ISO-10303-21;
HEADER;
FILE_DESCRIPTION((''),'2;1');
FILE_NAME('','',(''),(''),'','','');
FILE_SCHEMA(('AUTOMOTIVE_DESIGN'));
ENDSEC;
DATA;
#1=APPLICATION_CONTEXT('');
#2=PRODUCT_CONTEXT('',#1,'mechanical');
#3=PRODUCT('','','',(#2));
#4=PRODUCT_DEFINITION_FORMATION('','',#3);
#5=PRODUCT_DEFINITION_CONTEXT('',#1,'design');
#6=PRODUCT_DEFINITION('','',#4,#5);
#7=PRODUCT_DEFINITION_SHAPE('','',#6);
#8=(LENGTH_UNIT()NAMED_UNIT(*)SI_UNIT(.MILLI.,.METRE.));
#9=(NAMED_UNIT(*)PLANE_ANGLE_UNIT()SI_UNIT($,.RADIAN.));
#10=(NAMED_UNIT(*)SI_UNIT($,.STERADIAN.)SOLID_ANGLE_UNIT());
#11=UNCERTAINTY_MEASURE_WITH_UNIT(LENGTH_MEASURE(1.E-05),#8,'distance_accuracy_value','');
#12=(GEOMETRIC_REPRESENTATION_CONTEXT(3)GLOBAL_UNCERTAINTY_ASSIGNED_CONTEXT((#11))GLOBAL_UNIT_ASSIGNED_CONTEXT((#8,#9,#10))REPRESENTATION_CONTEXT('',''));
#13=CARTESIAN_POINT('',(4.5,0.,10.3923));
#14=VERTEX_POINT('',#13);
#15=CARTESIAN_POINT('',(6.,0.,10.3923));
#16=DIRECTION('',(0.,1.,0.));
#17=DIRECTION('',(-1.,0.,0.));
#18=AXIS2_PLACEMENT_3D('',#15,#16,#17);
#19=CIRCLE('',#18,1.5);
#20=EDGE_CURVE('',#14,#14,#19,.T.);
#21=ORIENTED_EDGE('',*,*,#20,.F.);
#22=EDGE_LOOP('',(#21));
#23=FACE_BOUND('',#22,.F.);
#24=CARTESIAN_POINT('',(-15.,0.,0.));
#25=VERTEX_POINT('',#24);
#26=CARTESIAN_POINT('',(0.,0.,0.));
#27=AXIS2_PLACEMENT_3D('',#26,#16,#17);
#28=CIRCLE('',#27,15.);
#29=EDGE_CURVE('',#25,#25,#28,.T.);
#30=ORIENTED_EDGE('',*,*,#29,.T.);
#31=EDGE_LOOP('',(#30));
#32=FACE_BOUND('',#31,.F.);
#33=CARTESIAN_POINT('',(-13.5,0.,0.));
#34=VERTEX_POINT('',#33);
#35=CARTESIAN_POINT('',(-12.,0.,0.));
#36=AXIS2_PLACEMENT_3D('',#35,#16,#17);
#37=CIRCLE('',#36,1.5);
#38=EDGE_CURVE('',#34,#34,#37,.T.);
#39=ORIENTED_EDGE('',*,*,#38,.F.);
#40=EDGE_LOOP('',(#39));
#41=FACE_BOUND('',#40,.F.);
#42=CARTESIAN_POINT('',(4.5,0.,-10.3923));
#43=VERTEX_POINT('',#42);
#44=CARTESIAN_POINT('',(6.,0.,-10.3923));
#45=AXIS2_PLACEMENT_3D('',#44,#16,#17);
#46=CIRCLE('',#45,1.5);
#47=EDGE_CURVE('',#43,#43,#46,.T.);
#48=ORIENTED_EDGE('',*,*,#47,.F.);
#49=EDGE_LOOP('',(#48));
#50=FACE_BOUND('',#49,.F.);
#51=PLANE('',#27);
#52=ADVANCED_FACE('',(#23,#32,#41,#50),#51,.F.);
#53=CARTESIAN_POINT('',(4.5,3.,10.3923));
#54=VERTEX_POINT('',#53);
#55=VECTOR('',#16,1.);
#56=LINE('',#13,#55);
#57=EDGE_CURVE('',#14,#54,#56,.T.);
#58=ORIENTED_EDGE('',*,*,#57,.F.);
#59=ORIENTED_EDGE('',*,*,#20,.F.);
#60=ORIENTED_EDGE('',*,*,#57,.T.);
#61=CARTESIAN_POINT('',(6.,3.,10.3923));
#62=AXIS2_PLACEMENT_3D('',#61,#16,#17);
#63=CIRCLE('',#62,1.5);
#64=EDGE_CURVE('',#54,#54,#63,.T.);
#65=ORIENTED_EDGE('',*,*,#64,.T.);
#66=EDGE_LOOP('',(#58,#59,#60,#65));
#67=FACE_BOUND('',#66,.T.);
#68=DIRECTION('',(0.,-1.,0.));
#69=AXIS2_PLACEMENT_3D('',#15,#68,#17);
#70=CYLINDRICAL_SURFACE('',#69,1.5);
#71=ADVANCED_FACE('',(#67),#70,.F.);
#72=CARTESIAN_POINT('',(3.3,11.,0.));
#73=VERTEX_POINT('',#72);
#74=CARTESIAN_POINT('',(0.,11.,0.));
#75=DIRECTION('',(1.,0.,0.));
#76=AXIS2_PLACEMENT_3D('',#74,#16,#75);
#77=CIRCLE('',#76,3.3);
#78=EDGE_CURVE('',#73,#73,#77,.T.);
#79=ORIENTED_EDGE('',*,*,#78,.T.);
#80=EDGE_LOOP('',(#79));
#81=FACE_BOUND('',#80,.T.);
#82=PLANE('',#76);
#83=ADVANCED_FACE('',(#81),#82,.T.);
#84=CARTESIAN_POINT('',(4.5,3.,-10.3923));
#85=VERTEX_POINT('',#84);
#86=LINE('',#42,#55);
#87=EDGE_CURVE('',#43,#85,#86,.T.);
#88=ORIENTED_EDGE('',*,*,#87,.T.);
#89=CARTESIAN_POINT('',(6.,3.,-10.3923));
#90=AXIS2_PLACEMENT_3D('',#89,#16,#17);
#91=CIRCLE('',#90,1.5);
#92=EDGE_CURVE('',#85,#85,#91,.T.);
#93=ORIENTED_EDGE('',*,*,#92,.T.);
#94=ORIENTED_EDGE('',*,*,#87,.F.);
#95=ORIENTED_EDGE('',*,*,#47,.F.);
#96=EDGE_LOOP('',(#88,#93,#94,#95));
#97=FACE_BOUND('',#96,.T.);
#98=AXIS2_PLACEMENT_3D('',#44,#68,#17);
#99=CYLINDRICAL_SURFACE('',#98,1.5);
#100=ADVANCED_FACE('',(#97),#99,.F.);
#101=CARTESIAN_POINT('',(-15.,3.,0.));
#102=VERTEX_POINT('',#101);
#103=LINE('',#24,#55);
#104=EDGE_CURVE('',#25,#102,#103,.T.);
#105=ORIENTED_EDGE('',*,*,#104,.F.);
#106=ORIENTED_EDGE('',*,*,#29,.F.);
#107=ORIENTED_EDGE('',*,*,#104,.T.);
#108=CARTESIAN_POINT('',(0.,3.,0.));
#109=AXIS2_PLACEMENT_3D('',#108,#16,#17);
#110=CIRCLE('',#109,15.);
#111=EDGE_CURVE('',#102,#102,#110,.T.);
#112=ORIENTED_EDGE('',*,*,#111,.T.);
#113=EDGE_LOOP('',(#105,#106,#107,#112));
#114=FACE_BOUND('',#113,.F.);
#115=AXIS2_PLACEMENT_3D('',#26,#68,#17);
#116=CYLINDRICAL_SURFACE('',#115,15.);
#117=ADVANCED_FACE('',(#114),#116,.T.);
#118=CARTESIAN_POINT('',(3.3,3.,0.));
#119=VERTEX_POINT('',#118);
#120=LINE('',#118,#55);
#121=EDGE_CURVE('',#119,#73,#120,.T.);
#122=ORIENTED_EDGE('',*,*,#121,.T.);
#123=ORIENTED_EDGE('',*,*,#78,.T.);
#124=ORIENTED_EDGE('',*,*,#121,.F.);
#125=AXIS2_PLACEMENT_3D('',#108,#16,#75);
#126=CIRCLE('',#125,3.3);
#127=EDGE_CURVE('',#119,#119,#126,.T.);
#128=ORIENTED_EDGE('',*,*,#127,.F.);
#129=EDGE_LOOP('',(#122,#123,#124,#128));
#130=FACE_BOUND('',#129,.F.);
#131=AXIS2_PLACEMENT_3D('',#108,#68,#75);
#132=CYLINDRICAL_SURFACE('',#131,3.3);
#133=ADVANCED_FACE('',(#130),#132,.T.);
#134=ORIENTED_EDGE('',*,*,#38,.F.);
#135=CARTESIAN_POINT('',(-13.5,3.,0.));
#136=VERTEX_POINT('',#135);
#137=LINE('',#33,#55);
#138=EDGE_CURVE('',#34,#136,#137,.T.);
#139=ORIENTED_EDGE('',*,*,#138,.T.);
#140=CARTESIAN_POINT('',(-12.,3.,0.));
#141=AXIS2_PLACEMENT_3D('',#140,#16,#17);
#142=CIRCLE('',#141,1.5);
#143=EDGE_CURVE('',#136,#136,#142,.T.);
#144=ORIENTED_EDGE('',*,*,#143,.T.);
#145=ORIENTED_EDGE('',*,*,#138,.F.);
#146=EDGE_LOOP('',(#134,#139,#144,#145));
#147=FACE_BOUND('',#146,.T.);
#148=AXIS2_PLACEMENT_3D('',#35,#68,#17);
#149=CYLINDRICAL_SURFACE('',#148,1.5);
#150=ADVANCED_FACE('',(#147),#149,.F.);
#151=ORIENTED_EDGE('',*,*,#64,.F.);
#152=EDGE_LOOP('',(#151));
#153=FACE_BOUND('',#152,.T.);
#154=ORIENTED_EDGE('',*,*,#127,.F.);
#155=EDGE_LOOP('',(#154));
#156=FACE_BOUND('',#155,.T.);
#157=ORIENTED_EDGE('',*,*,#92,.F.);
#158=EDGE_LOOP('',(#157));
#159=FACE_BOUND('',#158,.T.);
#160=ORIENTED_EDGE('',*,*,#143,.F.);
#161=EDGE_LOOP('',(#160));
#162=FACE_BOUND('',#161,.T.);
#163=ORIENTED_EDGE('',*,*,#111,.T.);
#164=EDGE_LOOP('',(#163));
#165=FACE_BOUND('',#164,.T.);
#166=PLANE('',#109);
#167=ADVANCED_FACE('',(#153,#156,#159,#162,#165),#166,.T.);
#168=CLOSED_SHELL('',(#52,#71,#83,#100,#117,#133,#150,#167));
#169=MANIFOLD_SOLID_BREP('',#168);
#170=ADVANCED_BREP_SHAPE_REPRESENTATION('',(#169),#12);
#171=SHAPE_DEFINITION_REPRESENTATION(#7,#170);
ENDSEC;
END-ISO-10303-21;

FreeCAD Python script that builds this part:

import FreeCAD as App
import Part
import Sketcher

doc = App.newDocument("Part")
body = doc.addObject("PartDesign::Body", "Body")

# Sketch on XZ plane
sketch1 = body.newObject("Sketcher::SketchObject", "Sketch")
sketch1.AttachmentSupport = (doc.getObject("XZ_Plane"), [""])
sketch1.MapMode = "FlatFace"
sketch1.addGeometry(Part.Circle(App.Vector(0, 0, 0), App.Vector(0, 0, 1), 15), False)
sketch1.addGeometry(Part.Circle(App.Vector(6, -10.3923, 0), App.Vector(0, 0, 1), 1.5), False)
sketch1.addGeometry(Part.Circle(App.Vector(6, 10.3923, 0), App.Vector(0, 0, 1), 1.5), False)
sketch1.addGeometry(Part.Circle(App.Vector(-12, 0, 0), App.Vector(0, 0, 1), 1.5), False)
sketch1.addConstraint(Sketcher.Constraint("Coincident", 0, 3, -1, 1))
sketch1.addConstraint(Sketcher.Constraint("Equal", 1, 2))
sketch1.addConstraint(Sketcher.Constraint("Equal", 2, 3))
sketch1.addConstraint(Sketcher.Constraint("Symmetric", 1, 3, 2, 3, -1))
sketch1.addConstraint(Sketcher.Constraint("PointOnObject", 3, 3, -1))
sketch1.addConstraint(Sketcher.Constraint("Diameter", 0, 30.0))
sketch1.addConstraint(Sketcher.Constraint("Diameter", 1, 3.0))
sketch1.addConstraint(Sketcher.Constraint("DistanceX", 3, 3, -1, 1, 12.0))
sketch1.addConstraint(Sketcher.Constraint("DistanceX", -1, 1, 1, 3, 6.0))
sketch1.addConstraint(Sketcher.Constraint("DistanceY", 1, 3, -1, 1, 10.3923))
pad1 = body.newObject("PartDesign::Pad", "Pad")
pad1.Profile = sketch1
pad1.Length = 3
pad1.Reversed = True

# Sketch on XZ plane
sketch2 = body.newObject("Sketcher::SketchObject", "Sketch001")
sketch2.AttachmentSupport = (doc.getObject("XZ_Plane"), [""])
sketch2.MapMode = "FlatFace"
sketch2.AttachmentOffset = App.Placement(App.Vector(0, 0, -3), App.Rotation())
sketch2.addGeometry(Part.Circle(App.Vector(0, 0, 0), App.Vector(0, 0, 1), 3.3), False)
sketch2.addConstraint(Sketcher.Constraint("Coincident", 0, 3, -1, 1))
sketch2.addConstraint(Sketcher.Constraint("Diameter", 0, 6.6))
pad2 = body.newObject("PartDesign::Pad", "Pad001")
pad2.Profile = sketch2
pad2.Length = 8
pad2.Reversed = True

doc.recompute()
